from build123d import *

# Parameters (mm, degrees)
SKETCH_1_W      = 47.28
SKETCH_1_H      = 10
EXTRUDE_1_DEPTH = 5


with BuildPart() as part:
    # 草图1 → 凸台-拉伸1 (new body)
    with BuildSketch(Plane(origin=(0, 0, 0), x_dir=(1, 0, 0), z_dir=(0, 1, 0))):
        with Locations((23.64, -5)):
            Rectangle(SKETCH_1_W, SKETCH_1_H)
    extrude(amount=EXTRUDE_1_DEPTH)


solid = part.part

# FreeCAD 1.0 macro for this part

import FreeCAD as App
import Part
import Sketcher

V = App.Vector


def add_polygon(sketch, points):
    """Adds a closed chain of lines whose ends are joined by coincident constraints."""
    first, n = sketch.GeometryCount, len(points)
    for a, b in zip(points, points[1:] + points[:1]):
        sketch.addGeometry(Part.LineSegment(App.Vector(*a, 0), App.Vector(*b, 0)), False)
    for i in range(n):
        sketch.addConstraint(Sketcher.Constraint("Coincident", first + i, 2, first + (i + 1) % n, 1))

doc = App.newDocument("Part")
body = doc.addObject("PartDesign::Body", "Body")

sketch1 = body.newObject("Sketcher::SketchObject", "Sketch")
sketch1.AttachmentSupport = (doc.getObject("XZ_Plane"), [""])
sketch1.MapMode = "FlatFace"
add_polygon(sketch1, [(0, 0), (0, 10), (47, 10), (47, 0)])
sketch1.addConstraint([
    Sketcher.Constraint("Vertical", 0),
    Sketcher.Constraint("Horizontal", 1),
    Sketcher.Constraint("Vertical", 2),
    Sketcher.Constraint("Horizontal", 3),
    Sketcher.Constraint("Coincident", 3, 2, -1, 1),
    Sketcher.Constraint("DistanceY", 0, 1, 0, 2, 10.0),
    Sketcher.Constraint("DistanceX", 1, 1, 1, 2, 47.28),
])
pad1 = body.newObject("PartDesign::Pad", "Pad")
pad1.Profile = sketch1
pad1.Length = 5
pad1.Reversed = True

doc.recompute()
